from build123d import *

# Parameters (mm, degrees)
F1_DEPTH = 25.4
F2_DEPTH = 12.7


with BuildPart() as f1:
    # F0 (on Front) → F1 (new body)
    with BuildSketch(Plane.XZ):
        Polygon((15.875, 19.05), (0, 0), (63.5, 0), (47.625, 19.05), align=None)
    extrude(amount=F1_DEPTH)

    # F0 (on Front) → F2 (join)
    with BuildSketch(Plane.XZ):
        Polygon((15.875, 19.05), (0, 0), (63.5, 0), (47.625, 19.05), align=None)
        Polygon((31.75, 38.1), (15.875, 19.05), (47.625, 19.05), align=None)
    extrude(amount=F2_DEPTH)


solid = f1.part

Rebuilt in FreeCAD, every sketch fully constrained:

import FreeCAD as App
import Part
import Sketcher
Q = App.Units.Quantity

doc = App.newDocument("Part")
body = doc.addObject("PartDesign::Body", "Body")

sketch1 = body.newObject("Sketcher::SketchObject", "Sketch")
sketch1.AttachmentSupport = (doc.getObject("XZ_Plane"), [""])
sketch1.MapMode = "FlatFace"
sketch1.addGeometry([
    Part.LineSegment(App.Vector(16, 19, 0), App.Vector(0, 0, 0)),
    Part.LineSegment(App.Vector(0, 0, 0), App.Vector(64, 0, 0)),
    Part.LineSegment(App.Vector(64, 0, 0), App.Vector(48, 19, 0)),
    Part.LineSegment(App.Vector(48, 19, 0), App.Vector(16, 19, 0)),
], False)
sketch1.addConstraint([
    Sketcher.Constraint("Coincident", 0, 2, 1, 1),
    Sketcher.Constraint("Coincident", 1, 2, 2, 1),
    Sketcher.Constraint("Coincident", 2, 2, 3, 1),
    Sketcher.Constraint("Coincident", 3, 2, 0, 1),
    Sketcher.Constraint("Horizontal", 1),
    Sketcher.Constraint("Horizontal", 3),
    Sketcher.Constraint("Coincident", 0, 2, -1, 1),
    Sketcher.Constraint("Equal", 0, 2),
    Sketcher.Constraint("DistanceX", 1, 1, 1, 2, Q("2.5 in")),
    Sketcher.Constraint("DistanceX", 3, 2, 3, 1, Q("1.25 in")),
    Sketcher.Constraint("DistanceY", -1, 1, 2, 2, Q("0.75 in")),
])
pad1 = body.newObject("PartDesign::Pad", "Pad")
pad1.Profile = sketch1
pad1.Length = Q("1 in")

sketch2 = body.newObject("Sketcher::SketchObject", "Sketch001")
sketch2.AttachmentSupport = (doc.getObject("XZ_Plane"), [""])
sketch2.MapMode = "FlatFace"
sketch2.addGeometry([
    Part.LineSegment(App.Vector(0, 0, 0), App.Vector(64, 0, 0)),
    Part.LineSegment(App.Vector(64, 0, 0), App.Vector(32, 38, 0)),
    Part.LineSegment(App.Vector(32, 38, 0), App.Vector(0, 0, 0)),
], False)
sketch2.addConstraint([
    Sketcher.Constraint("Coincident", 0, 2, 1, 1),
    Sketcher.Constraint("Coincident", 1, 2, 2, 1),
    Sketcher.Constraint("Coincident", 2, 2, 0, 1),
    Sketcher.Constraint("Horizontal", 0),
    Sketcher.Constraint("Coincident", 2, 2, -1, 1),
    Sketcher.Constraint("Equal", 1, 2),
    Sketcher.Constraint("DistanceX", 0, 1, 0, 2, Q("2.5 in")),
    Sketcher.Constraint("DistanceY", -1, 1, 1, 2, Q("1.5 in")),
])
pad2 = body.newObject("PartDesign::Pad", "Pad001")
pad2.Profile = sketch2
pad2.Length = Q("0.5 in")

doc.recompute()
